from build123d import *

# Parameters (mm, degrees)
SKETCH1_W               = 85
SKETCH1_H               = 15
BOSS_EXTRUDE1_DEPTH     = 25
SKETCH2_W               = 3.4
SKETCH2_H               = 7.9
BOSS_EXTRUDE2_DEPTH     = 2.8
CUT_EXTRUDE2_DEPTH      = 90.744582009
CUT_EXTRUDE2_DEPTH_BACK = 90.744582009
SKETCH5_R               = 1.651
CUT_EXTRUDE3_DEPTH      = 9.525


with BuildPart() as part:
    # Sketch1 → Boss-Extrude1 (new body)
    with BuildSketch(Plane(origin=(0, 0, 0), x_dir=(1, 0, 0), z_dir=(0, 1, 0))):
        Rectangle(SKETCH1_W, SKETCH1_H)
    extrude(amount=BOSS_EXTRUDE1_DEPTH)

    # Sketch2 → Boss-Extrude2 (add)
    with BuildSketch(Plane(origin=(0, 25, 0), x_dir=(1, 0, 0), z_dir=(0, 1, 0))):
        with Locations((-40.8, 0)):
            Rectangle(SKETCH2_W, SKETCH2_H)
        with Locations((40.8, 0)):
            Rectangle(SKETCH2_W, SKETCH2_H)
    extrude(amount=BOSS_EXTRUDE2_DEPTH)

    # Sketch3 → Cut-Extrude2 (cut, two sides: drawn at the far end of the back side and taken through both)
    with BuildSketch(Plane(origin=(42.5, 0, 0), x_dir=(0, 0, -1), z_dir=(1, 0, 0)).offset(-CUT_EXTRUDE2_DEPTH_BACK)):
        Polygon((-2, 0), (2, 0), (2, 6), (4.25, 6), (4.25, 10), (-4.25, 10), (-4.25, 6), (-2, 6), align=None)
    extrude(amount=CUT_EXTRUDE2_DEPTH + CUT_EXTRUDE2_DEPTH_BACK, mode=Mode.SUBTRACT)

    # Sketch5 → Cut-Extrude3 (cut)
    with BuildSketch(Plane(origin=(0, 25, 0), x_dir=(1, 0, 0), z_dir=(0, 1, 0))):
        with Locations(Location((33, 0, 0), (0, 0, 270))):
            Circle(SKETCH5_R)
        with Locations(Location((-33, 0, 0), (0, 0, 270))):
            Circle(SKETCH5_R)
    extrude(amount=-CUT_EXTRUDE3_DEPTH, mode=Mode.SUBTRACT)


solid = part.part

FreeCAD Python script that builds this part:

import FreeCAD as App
import Part
import Sketcher
from FreeCAD import Vector
Q = App.Units.Quantity

doc = App.newDocument("Part")
params = doc.addObject("Spreadsheet::Sheet", "Params")
for row, (alias, value) in enumerate([
    ("sketch1_width", "85 mm"),
    ("sketch1_height", "15 mm"),
    ("pad1_length", "25 mm"),
    ("sketch2_width", "3.4 mm"),
    ("sketch2_height", "7.9 mm"),
    ("pad2_length", "2.8 mm"),
    ("sketch3_width", "6 mm"),
    ("sketch3_width2", "4 mm"),
    ("sketch3_height", "8.5 mm"),
    ("pocket2_length", "9.525 mm"),
], start=1):
    params.set(f"A{row}", alias)
    params.set(f"B{row}", "=" + value)
    params.setAlias(f"B{row}", alias)

body = doc.addObject("PartDesign::Body", "Body")

# Sketch on XZ plane
sketch1 = body.newObject("Sketcher::SketchObject", "Sketch")
sketch1.AttachmentSupport = (doc.getObject("XZ_Plane"), [""])
sketch1.MapMode = "FlatFace"
sketch1.addGeometry([
    Part.LineSegment(Vector(-42.5, -7.5, 0), Vector(-42.5, 7.5, 0)),
    Part.LineSegment(Vector(-42.5, 7.5, 0), Vector(42.5, 7.5, 0)),
    Part.LineSegment(Vector(42.5, 7.5, 0), Vector(42.5, -7.5, 0)),
    Part.LineSegment(Vector(42.5, -7.5, 0), Vector(-42.5, -7.5, 0)),
], False)
sketch1.addConstraint([
    Sketcher.Constraint("Coincident", 0, 2, 1, 1),
    Sketcher.Constraint("Coincident", 1, 2, 2, 1),
    Sketcher.Constraint("Coincident", 2, 2, 3, 1),
    Sketcher.Constraint("Coincident", 3, 2, 0, 1),
    Sketcher.Constraint("Vertical", 0),
    Sketcher.Constraint("Horizontal", 1),
    Sketcher.Constraint("Vertical", 2),
    Sketcher.Constraint("Horizontal", 3),
    Sketcher.Constraint("Symmetric", 0, 2, 2, 2, -1, 1),
    Sketcher.Constraint("DistanceX", 1, 1, 1, 2, Q("85 mm")),
    Sketcher.Constraint("DistanceY", 0, 1, 0, 2, Q("15 mm")),
])
sketch1.setExpression("Constraints[9]", "Params.sketch1_width")
sketch1.setExpression("Constraints[10]", "Params.sketch1_height")
pad1 = body.newObject("PartDesign::Pad", "Pad")
pad1.Profile = sketch1
pad1.setExpression("Length", "Params.pad1_length")
pad1.Reversed = True

# Sketch on XZ plane
sketch2 = body.newObject("Sketcher::SketchObject", "Sketch001")
sketch2.AttachmentSupport = (doc.getObject("XZ_Plane"), [""])
sketch2.MapMode = "FlatFace"
sketch2.AttachmentOffset = App.Placement(Vector(0, 0, -25), App.Rotation())
sketch2.addGeometry([
    Part.LineSegment(Vector(-42.5, -3.95, 0), Vector(-42.5, 3.95, 0)),  # 0
    Part.LineSegment(Vector(-42.5, 3.95, 0), Vector(-39.1, 3.95, 0)),  # 1
    Part.LineSegment(Vector(-39.1, 3.95, 0), Vector(-39.1, -3.95, 0)),  # 2
    Part.LineSegment(Vector(-39.1, -3.95, 0), Vector(-42.5, -3.95, 0)),  # 3
    Part.LineSegment(Vector(39.1, -3.95, 0), Vector(39.1, 3.95, 0)),  # 4
    Part.LineSegment(Vector(39.1, 3.95, 0), Vector(42.5, 3.95, 0)),  # 5
    Part.LineSegment(Vector(42.5, 3.95, 0), Vector(42.5, -3.95, 0)),  # 6
    Part.LineSegment(Vector(42.5, -3.95, 0), Vector(39.1, -3.95, 0)),  # 7
], False)
sketch2.addConstraint([
    Sketcher.Constraint("Coincident", 0, 2, 1, 1),
    Sketcher.Constraint("Coincident", 1, 2, 2, 1),
    Sketcher.Constraint("Coincident", 2, 2, 3, 1),
    Sketcher.Constraint("Coincident", 3, 2, 0, 1),
    Sketcher.Constraint("Coincident", 4, 2, 5, 1),
    Sketcher.Constraint("Coincident", 5, 2, 6, 1),
    Sketcher.Constraint("Coincident", 6, 2, 7, 1),
    Sketcher.Constraint("Coincident", 7, 2, 4, 1),
    Sketcher.Constraint("Vertical", 0),
    Sketcher.Constraint("Horizontal", 1),
    Sketcher.Constraint("Vertical", 2),
    Sketcher.Constraint("Horizontal", 3),
    Sketcher.Constraint("Vertical", 4),
    Sketcher.Constraint("Horizontal", 5),
    Sketcher.Constraint("Vertical", 6),
    Sketcher.Constraint("Horizontal", 7),
    Sketcher.Constraint("Symmetric", 2, 2, 4, 2, -1, 1),
    Sketcher.Constraint("Symmetric", 0, 2, 6, 2, -1, 1),
    Sketcher.Constraint("Horizontal", 1, 2, 4, 2),
    Sketcher.Constraint("DistanceX", 1, 1, 1, 2, Q("3.4 mm")),
    Sketcher.Constraint("DistanceY", 0, 1, 0, 2, Q("7.9 mm")),
    Sketcher.Constraint("DistanceX", 0, 2, 5, 2, Q("85 mm")),
])
sketch2.setExpression("Constraints[19]", "Params.sketch2_width")
sketch2.setExpression("Constraints[20]", "Params.sketch2_height")
pad2 = body.newObject("PartDesign::Pad", "Pad001")
pad2.Profile = sketch2
pad2.setExpression("Length", "Params.pad2_length")
pad2.Reversed = True

# Sketch on YZ plane
sketch3 = body.newObject("Sketcher::SketchObject", "Sketch002")
sketch3.AttachmentSupport = (doc.getObject("YZ_Plane"), [""])
sketch3.MapMode = "FlatFace"
sketch3.AttachmentOffset = App.Placement(Vector(0, 0, 42.5), App.Rotation())
sketch3.addGeometry([
    Part.LineSegment(Vector(0, 2, 0), Vector(0, -2, 0)),  # 0
    Part.LineSegment(Vector(0, -2, 0), Vector(6, -2, 0)),  # 1
    Part.LineSegment(Vector(6, -2, 0), Vector(6, -4.25, 0)),  # 2
    Part.LineSegment(Vector(6, -4.25, 0), Vector(10, -4.25, 0)),  # 3
    Part.LineSegment(Vector(10, -4.25, 0), Vector(10, 4.25, 0)),  # 4
    Part.LineSegment(Vector(10, 4.25, 0), Vector(6, 4.25, 0)),  # 5
    Part.LineSegment(Vector(6, 4.25, 0), Vector(6, 2, 0)),  # 6
    Part.LineSegment(Vector(6, 2, 0), Vector(0, 2, 0)),  # 7
], False)
sketch3.addConstraint([
    Sketcher.Constraint("Coincident", 0, 2, 1, 1),
    Sketcher.Constraint("Coincident", 1, 2, 2, 1),
    Sketcher.Constraint("Coincident", 2, 2, 3, 1),
    Sketcher.Constraint("Coincident", 3, 2, 4, 1),
    Sketcher.Constraint("Coincident", 4, 2, 5, 1),
    Sketcher.Constraint("Coincident", 5, 2, 6, 1),
    Sketcher.Constraint("Coincident", 6, 2, 7, 1),
    Sketcher.Constraint("Coincident", 7, 2, 0, 1),
    Sketcher.Constraint("Vertical", 0),
    Sketcher.Constraint("Horizontal", 1),
    Sketcher.Constraint("Vertical", 2),
    Sketcher.Constraint("Horizontal", 3),
    Sketcher.Constraint("Vertical", 4),
    Sketcher.Constraint("Horizontal", 5),
    Sketcher.Constraint("Vertical", 6),
    Sketcher.Constraint("Horizontal", 7),
    Sketcher.Constraint("Symmetric", 0, 2, 7, 2, -1, 1),
    Sketcher.Constraint("Symmetric", 2, 2, 5, 2, -1),
    Sketcher.Constraint("Equal", 5, 0),
    Sketcher.Constraint("DistanceX", 1, 1, 1, 2, Q("6 mm")),
    Sketcher.Constraint("DistanceX", 3, 1, 3, 2, Q("4 mm")),
    Sketcher.Constraint("DistanceY", 4, 1, 4, 2, Q("8.5 mm")),
])
sketch3.setExpression("Constraints[19]", "Params.sketch3_width")
sketch3.setExpression("Constraints[20]", "Params.sketch3_width2")
sketch3.setExpression("Constraints[21]", "Params.sketch3_height")
pocket1 = body.newObject("PartDesign::Pocket", "Pocket")
pocket1.Profile = sketch3
pocket1.Type = "ThroughAll"
pocket1.Midplane = True

# Sketch on XZ plane
sketch4 = body.newObject("Sketcher::SketchObject", "Sketch003")
sketch4.AttachmentSupport = (doc.getObject("XZ_Plane"), [""])
sketch4.MapMode = "FlatFace"
sketch4.AttachmentOffset = App.Placement(Vector(0, 0, -25), App.Rotation())
sketch4.addGeometry([
    Part.Circle(Vector(33, 0, 0), Vector(0, 0, 1), 1.651),
    Part.Circle(Vector(-33, 0, 0), Vector(0, 0, 1), 1.651),
], False)
sketch4.addConstraint([
    Sketcher.Constraint("Equal", 0, 1),
    Sketcher.Constraint("Symmetric", 0, 3, 1, 3, -1, 1),
    Sketcher.Constraint("PointOnObject", 0, 3, -1),
    Sketcher.Constraint("Diameter", 0, Q("3.302 mm")),
    Sketcher.Constraint("DistanceX", -1, 1, 0, 3, Q("33 mm")),
])
pocket2 = body.newObject("PartDesign::Pocket", "Pocket001")
pocket2.Profile = sketch4
pocket2.setExpression("Length", "Params.pocket2_length")
pocket2.Reversed = True

doc.recompute()
